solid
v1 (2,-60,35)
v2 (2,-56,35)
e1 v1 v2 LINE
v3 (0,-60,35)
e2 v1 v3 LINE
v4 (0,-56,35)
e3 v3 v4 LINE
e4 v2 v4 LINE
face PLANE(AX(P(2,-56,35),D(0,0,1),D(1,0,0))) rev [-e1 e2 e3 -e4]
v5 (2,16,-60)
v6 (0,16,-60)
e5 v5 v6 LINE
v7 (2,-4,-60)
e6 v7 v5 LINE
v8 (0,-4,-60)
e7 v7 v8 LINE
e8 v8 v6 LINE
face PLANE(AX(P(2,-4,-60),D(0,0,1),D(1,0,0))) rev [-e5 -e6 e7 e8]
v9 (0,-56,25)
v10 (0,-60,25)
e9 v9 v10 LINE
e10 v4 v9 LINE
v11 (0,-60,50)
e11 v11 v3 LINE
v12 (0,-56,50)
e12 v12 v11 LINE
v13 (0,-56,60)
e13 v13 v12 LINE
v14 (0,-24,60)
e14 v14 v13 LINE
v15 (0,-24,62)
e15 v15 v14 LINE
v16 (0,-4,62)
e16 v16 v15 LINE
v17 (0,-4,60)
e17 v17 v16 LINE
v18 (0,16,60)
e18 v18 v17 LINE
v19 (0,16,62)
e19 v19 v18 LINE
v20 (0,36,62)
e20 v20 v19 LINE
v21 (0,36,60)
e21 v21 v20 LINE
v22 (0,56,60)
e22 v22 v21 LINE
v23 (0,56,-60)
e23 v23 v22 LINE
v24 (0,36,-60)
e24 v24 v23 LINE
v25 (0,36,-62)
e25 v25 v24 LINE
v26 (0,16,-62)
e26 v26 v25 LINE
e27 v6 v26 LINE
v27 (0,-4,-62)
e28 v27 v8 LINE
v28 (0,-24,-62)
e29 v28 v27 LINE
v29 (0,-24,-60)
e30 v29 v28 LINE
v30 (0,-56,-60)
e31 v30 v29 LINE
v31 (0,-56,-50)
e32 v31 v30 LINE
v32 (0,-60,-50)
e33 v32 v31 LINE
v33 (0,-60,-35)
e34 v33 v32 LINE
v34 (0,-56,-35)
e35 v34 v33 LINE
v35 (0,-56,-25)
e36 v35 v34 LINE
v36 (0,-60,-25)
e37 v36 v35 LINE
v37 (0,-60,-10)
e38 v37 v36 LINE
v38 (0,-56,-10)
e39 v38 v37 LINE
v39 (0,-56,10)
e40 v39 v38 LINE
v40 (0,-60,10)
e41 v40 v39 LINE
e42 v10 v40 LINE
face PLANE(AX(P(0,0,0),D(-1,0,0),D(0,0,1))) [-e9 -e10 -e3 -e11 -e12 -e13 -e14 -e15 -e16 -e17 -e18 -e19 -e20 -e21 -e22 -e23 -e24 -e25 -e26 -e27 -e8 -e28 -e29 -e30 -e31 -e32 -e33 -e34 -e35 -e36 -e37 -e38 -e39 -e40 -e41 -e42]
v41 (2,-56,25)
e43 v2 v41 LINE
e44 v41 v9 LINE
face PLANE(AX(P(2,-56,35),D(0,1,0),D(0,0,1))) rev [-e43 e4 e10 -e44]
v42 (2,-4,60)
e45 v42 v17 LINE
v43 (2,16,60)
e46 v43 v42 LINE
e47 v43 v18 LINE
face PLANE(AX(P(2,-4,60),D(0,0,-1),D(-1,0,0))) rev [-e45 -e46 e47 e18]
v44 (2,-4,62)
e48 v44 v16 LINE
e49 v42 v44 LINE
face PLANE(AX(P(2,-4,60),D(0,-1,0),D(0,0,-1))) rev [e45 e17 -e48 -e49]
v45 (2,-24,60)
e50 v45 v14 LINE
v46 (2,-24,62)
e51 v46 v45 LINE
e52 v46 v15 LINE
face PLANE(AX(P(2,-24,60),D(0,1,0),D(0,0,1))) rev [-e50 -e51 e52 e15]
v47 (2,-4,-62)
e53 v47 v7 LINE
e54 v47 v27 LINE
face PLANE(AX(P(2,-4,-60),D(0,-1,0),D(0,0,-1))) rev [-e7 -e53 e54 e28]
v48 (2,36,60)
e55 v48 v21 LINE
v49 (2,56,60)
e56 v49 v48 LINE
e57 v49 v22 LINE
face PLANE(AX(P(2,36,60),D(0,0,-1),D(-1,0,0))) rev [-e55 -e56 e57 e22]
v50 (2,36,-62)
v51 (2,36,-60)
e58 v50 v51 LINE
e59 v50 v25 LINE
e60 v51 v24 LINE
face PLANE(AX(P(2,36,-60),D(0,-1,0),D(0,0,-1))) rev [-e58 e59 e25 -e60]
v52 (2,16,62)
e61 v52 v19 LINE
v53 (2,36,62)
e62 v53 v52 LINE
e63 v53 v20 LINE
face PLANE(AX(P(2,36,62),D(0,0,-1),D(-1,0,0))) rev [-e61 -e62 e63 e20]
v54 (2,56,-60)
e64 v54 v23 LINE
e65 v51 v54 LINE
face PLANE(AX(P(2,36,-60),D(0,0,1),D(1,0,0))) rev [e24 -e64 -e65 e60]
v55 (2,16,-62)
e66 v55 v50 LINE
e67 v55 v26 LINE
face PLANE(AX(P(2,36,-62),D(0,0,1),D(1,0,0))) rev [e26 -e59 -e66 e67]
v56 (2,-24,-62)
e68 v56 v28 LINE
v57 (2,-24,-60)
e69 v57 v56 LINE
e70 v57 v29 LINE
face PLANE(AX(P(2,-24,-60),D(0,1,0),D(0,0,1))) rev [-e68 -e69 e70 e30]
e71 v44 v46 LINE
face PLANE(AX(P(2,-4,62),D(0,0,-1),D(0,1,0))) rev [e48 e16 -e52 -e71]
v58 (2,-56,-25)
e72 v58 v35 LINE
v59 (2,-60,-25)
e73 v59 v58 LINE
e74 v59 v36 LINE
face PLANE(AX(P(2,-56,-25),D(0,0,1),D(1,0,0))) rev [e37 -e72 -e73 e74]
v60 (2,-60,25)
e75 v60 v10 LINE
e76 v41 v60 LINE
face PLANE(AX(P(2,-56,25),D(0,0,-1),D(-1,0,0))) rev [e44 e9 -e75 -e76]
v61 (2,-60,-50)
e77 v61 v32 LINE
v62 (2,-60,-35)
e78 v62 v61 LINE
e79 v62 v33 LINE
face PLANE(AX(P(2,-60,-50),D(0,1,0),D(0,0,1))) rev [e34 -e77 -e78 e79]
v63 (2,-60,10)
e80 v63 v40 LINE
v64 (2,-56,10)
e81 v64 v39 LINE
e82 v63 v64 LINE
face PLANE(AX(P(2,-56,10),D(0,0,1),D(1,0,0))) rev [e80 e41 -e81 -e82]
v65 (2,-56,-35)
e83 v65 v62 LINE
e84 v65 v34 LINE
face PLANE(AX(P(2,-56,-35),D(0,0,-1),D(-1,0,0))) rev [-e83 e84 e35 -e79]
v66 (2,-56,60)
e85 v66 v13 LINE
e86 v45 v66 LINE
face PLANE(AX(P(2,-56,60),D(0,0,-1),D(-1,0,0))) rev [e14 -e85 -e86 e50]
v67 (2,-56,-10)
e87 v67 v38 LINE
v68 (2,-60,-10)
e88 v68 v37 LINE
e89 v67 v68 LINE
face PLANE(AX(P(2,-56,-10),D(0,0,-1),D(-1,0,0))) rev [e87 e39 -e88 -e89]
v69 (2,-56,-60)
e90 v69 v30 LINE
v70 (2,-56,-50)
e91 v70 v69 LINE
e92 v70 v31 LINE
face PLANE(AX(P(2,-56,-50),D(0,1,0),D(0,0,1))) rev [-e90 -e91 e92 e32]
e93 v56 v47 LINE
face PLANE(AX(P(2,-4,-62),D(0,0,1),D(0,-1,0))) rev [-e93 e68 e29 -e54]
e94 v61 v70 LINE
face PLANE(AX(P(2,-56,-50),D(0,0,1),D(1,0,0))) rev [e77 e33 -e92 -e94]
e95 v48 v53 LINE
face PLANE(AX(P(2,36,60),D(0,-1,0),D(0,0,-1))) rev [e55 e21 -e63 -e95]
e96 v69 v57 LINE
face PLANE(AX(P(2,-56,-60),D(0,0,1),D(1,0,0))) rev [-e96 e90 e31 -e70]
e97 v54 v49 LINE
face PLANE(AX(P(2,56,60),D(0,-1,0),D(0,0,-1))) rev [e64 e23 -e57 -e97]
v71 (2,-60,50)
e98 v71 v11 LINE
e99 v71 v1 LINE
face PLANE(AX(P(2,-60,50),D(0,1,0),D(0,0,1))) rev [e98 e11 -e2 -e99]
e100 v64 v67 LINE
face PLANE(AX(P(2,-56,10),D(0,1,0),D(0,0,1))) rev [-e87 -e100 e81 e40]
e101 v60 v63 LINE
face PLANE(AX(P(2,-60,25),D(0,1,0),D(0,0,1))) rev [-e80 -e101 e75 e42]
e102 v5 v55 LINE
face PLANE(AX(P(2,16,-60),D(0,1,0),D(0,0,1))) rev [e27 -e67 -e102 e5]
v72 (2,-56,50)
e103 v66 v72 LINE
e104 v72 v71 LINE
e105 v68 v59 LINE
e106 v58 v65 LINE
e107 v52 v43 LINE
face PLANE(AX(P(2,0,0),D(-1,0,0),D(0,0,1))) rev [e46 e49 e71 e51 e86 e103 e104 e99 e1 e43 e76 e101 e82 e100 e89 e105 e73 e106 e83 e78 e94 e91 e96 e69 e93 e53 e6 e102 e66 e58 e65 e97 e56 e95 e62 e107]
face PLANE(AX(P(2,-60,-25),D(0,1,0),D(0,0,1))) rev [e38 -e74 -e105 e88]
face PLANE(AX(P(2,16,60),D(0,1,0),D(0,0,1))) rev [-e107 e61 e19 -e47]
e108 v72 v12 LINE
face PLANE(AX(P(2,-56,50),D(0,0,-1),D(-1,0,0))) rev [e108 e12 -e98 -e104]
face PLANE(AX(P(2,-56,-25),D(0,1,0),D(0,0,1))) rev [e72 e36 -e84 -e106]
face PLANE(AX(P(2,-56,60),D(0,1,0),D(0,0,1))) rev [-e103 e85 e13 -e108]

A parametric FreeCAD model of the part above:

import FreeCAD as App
import Part
import Sketcher

V = App.Vector


def add_polygon(sketch, points):
    """Adds a closed chain of lines whose ends are joined by coincident constraints."""
    first, n = sketch.GeometryCount, len(points)
    for a, b in zip(points, points[1:] + points[:1]):
        sketch.addGeometry(Part.LineSegment(App.Vector(*a, 0), App.Vector(*b, 0)), False)
    for i in range(n):
        sketch.addConstraint(Sketcher.Constraint("Coincident", first + i, 2, first + (i + 1) % n, 1))

doc = App.newDocument("Part")
body = doc.addObject("PartDesign::Body", "Body")

sketch1 = body.newObject("Sketcher::SketchObject", "Sketch")
sketch1.AttachmentSupport = (doc.getObject("YZ_Plane"), [""])
sketch1.MapMode = "FlatFace"
add_polygon(sketch1, [(-56, 60), (-56, 50), (-60, 50), (-60, 35), (-56, 35), (-56, 25), (-60, 25), (-60, 10), (-56, 10), (-56, -10), (-60, -10), (-60, -25), (-56, -25), (-56, -35), (-60, -35), (-60, -50), (-56, -50), (-56, -60), (-24, -60), (-24, -62), (-4, -62), (-4, -60), (16, -60), (16, -62), (36, -62), (36, -60), (56, -60), (56, 60), (36, 60), (36, 62), (16, 62), (16, 60), (-4, 60), (-4, 62), (-24, 62), (-24, 60)])
sketch1.addConstraint(Sketcher.Constraint("Vertical", 0))
sketch1.addConstraint(Sketcher.Constraint("Horizontal", 1))
sketch1.addConstraint(Sketcher.Constraint("Vertical", 2))
sketch1.addConstraint(Sketcher.Constraint("Horizontal", 3))
sketch1.addConstraint(Sketcher.Constraint("Vertical", 4))
sketch1.addConstraint(Sketcher.Constraint("Horizontal", 5))
sketch1.addConstraint(Sketcher.Constraint("Vertical", 6))
sketch1.addConstraint(Sketcher.Constraint("Horizontal", 7))
sketch1.addConstraint(Sketcher.Constraint("Vertical", 8))
sketch1.addConstraint(Sketcher.Constraint("Horizontal", 9))
sketch1.addConstraint(Sketcher.Constraint("Vertical", 10))
sketch1.addConstraint(Sketcher.Constraint("Horizontal", 11))
sketch1.addConstraint(Sketcher.Constraint("Vertical", 12))
sketch1.addConstraint(Sketcher.Constraint("Horizontal", 13))
sketch1.addConstraint(Sketcher.Constraint("Vertical", 14))
sketch1.addConstraint(Sketcher.Constraint("Horizontal", 15))
sketch1.addConstraint(Sketcher.Constraint("Vertical", 16))
sketch1.addConstraint(Sketcher.Constraint("Horizontal", 17))
sketch1.addConstraint(Sketcher.Constraint("Vertical", 18))
sketch1.addConstraint(Sketcher.Constraint("Horizontal", 19))
sketch1.addConstraint(Sketcher.Constraint("Vertical", 20))
sketch1.addConstraint(Sketcher.Constraint("Horizontal", 21))
sketch1.addConstraint(Sketcher.Constraint("Vertical", 22))
sketch1.addConstraint(Sketcher.Constraint("Horizontal", 23))
sketch1.addConstraint(Sketcher.Constraint("Vertical", 24))
sketch1.addConstraint(Sketcher.Constraint("Horizontal", 25))
sketch1.addConstraint(Sketcher.Constraint("Vertical", 26))
sketch1.addConstraint(Sketcher.Constraint("Horizontal", 27))
sketch1.addConstraint(Sketcher.Constraint("Vertical", 28))
sketch1.addConstraint(Sketcher.Constraint("Horizontal", 29))
sketch1.addConstraint(Sketcher.Constraint("Vertical", 30))
sketch1.addConstraint(Sketcher.Constraint("Horizontal", 31))
sketch1.addConstraint(Sketcher.Constraint("Vertical", 32))
sketch1.addConstraint(Sketcher.Constraint("Horizontal", 33))
sketch1.addConstraint(Sketcher.Constraint("Vertical", 34))
sketch1.addConstraint(Sketcher.Constraint("Horizontal", 35))
sketch1.addConstraint(Sketcher.Constraint("Symmetric", 16, 2, 26, 2, -1, 1))
sketch1.addConstraint(Sketcher.Constraint("Symmetric", 25, 2, 35, 2, -1, 1))
sketch1.addConstraint(Sketcher.Constraint("Symmetric", 6, 2, 9, 2, -1))
sketch1.addConstraint(Sketcher.Constraint("Symmetric", 4, 2, 11, 2, -1))
sketch1.addConstraint(Sketcher.Constraint("Symmetric", 2, 2, 13, 2, -1))
sketch1.addConstraint(Sketcher.Constraint("Symmetric", 24, 2, 27, 2, -1))
sketch1.addConstraint(Sketcher.Constraint("Symmetric", 22, 2, 29, 2, -1))
sketch1.addConstraint(Sketcher.Constraint("Symmetric", 20, 2, 31, 2, -1))
sketch1.addConstraint(Sketcher.Constraint("Symmetric", 18, 2, 33, 2, -1))
sketch1.addConstraint(Sketcher.Constraint("Horizontal", 17, 2, 20, 2))
sketch1.addConstraint(Sketcher.Constraint("Horizontal", 19, 2, 22, 2))
sketch1.addConstraint(Sketcher.Constraint("Vertical", 0, 2, 3, 2))
sketch1.addConstraint(Sketcher.Constraint("Vertical", 2, 2, 5, 2))
sketch1.addConstraint(Sketcher.Constraint("Vertical", 4, 2, 7, 2))
sketch1.addConstraint(Sketcher.Constraint("Equal", 19, 21))
sketch1.addConstraint(Sketcher.Constraint("Equal", 21, 23))
sketch1.addConstraint(Sketcher.Constraint("Equal", 23, 25))
sketch1.addConstraint(Sketcher.Constraint("Equal", 0, 4))
sketch1.addConstraint(Sketcher.Constraint("Equal", 2, 6))
sketch1.addConstraint(Sketcher.Constraint("Equal", 33, 8))
sketch1.addConstraint(Sketcher.Constraint("Equal", 10, 14))
sketch1.addConstraint(Sketcher.Constraint("DistanceX", 1, 2, 1, 1, 4.0))
sketch1.addConstraint(Sketcher.Constraint("DistanceX", 17, 1, 17, 2, 32.0))
sketch1.addConstraint(Sketcher.Constraint("DistanceX", 19, 1, 19, 2, 20.0))
sketch1.addConstraint(Sketcher.Constraint("DistanceY", 0, 2, 0, 1, 10.0))
sketch1.addConstraint(Sketcher.Constraint("DistanceY", 2, 2, 2, 1, 15.0))
sketch1.addConstraint(Sketcher.Constraint("DistanceY", 18, 2, 18, 1, 2.0))
pad1 = body.newObject("PartDesign::Pad", "Pad")
pad1.Profile = sketch1
pad1.Length = 2

doc.recompute()
